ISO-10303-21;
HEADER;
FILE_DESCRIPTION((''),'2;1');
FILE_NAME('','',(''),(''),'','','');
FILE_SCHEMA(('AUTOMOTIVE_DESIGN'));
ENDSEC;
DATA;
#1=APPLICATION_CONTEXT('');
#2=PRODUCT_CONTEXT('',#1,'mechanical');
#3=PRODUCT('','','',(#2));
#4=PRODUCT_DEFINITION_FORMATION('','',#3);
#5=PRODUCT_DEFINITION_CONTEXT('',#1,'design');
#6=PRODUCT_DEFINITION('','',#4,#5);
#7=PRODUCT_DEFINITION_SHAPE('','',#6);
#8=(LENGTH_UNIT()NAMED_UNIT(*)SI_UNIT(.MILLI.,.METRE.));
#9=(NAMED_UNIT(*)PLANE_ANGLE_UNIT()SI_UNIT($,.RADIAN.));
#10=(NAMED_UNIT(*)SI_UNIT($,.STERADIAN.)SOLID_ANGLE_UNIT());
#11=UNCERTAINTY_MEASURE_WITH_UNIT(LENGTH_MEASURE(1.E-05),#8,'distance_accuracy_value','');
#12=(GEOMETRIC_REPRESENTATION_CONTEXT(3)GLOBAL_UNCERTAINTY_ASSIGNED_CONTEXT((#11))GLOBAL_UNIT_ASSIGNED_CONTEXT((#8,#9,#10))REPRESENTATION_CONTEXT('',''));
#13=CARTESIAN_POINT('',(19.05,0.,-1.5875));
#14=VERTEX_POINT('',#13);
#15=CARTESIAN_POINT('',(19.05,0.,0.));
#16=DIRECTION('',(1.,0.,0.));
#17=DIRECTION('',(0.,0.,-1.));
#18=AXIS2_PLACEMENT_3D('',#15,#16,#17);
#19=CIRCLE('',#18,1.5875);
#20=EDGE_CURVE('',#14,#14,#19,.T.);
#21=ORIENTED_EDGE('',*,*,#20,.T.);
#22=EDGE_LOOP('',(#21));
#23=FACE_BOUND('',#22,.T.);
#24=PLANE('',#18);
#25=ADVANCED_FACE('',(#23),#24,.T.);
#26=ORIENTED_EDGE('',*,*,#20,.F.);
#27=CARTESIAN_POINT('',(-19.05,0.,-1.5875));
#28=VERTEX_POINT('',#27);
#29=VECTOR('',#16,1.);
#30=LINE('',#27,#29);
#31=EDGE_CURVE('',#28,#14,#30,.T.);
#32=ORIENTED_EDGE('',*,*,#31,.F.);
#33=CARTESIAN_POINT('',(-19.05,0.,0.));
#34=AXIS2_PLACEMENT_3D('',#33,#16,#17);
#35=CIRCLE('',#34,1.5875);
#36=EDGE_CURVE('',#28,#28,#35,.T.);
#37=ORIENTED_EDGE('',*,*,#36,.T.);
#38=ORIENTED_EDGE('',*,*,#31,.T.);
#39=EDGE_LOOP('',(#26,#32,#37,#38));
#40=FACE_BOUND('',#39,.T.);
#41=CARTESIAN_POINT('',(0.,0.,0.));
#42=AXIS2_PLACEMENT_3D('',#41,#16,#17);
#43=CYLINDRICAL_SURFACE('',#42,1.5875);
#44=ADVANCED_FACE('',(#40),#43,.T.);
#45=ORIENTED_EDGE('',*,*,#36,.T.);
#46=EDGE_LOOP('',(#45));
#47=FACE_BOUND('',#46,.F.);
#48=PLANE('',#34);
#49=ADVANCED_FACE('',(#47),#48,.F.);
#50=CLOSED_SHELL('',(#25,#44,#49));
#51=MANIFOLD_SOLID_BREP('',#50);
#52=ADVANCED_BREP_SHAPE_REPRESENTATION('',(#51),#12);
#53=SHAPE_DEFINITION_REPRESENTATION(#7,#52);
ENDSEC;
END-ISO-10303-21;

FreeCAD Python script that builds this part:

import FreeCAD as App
import Part
import Sketcher

V = App.Vector
Q = App.Units.Quantity

doc = App.newDocument("Part")
body = doc.addObject("PartDesign::Body", "Body")

# Sketch on YZ plane
sketch1 = body.newObject("Sketcher::SketchObject", "Sketch")
sketch1.AttachmentSupport = (doc.getObject("YZ_Plane"), [""])
sketch1.MapMode = "FlatFace"
sketch1.addGeometry(Part.Circle(V(0, 0, 0), V(0, 0, 1), 1.6), False)
sketch1.addConstraint([
    Sketcher.Constraint("Coincident", 0, 3, -1, 1),
    Sketcher.Constraint("Diameter", 0, Q("0.125 in")),
])
pad1 = body.newObject("PartDesign::Pad", "Pad")
pad1.Profile = sketch1
pad1.Length = Q("1.5 in")
pad1.Midplane = True

doc.recompute()
